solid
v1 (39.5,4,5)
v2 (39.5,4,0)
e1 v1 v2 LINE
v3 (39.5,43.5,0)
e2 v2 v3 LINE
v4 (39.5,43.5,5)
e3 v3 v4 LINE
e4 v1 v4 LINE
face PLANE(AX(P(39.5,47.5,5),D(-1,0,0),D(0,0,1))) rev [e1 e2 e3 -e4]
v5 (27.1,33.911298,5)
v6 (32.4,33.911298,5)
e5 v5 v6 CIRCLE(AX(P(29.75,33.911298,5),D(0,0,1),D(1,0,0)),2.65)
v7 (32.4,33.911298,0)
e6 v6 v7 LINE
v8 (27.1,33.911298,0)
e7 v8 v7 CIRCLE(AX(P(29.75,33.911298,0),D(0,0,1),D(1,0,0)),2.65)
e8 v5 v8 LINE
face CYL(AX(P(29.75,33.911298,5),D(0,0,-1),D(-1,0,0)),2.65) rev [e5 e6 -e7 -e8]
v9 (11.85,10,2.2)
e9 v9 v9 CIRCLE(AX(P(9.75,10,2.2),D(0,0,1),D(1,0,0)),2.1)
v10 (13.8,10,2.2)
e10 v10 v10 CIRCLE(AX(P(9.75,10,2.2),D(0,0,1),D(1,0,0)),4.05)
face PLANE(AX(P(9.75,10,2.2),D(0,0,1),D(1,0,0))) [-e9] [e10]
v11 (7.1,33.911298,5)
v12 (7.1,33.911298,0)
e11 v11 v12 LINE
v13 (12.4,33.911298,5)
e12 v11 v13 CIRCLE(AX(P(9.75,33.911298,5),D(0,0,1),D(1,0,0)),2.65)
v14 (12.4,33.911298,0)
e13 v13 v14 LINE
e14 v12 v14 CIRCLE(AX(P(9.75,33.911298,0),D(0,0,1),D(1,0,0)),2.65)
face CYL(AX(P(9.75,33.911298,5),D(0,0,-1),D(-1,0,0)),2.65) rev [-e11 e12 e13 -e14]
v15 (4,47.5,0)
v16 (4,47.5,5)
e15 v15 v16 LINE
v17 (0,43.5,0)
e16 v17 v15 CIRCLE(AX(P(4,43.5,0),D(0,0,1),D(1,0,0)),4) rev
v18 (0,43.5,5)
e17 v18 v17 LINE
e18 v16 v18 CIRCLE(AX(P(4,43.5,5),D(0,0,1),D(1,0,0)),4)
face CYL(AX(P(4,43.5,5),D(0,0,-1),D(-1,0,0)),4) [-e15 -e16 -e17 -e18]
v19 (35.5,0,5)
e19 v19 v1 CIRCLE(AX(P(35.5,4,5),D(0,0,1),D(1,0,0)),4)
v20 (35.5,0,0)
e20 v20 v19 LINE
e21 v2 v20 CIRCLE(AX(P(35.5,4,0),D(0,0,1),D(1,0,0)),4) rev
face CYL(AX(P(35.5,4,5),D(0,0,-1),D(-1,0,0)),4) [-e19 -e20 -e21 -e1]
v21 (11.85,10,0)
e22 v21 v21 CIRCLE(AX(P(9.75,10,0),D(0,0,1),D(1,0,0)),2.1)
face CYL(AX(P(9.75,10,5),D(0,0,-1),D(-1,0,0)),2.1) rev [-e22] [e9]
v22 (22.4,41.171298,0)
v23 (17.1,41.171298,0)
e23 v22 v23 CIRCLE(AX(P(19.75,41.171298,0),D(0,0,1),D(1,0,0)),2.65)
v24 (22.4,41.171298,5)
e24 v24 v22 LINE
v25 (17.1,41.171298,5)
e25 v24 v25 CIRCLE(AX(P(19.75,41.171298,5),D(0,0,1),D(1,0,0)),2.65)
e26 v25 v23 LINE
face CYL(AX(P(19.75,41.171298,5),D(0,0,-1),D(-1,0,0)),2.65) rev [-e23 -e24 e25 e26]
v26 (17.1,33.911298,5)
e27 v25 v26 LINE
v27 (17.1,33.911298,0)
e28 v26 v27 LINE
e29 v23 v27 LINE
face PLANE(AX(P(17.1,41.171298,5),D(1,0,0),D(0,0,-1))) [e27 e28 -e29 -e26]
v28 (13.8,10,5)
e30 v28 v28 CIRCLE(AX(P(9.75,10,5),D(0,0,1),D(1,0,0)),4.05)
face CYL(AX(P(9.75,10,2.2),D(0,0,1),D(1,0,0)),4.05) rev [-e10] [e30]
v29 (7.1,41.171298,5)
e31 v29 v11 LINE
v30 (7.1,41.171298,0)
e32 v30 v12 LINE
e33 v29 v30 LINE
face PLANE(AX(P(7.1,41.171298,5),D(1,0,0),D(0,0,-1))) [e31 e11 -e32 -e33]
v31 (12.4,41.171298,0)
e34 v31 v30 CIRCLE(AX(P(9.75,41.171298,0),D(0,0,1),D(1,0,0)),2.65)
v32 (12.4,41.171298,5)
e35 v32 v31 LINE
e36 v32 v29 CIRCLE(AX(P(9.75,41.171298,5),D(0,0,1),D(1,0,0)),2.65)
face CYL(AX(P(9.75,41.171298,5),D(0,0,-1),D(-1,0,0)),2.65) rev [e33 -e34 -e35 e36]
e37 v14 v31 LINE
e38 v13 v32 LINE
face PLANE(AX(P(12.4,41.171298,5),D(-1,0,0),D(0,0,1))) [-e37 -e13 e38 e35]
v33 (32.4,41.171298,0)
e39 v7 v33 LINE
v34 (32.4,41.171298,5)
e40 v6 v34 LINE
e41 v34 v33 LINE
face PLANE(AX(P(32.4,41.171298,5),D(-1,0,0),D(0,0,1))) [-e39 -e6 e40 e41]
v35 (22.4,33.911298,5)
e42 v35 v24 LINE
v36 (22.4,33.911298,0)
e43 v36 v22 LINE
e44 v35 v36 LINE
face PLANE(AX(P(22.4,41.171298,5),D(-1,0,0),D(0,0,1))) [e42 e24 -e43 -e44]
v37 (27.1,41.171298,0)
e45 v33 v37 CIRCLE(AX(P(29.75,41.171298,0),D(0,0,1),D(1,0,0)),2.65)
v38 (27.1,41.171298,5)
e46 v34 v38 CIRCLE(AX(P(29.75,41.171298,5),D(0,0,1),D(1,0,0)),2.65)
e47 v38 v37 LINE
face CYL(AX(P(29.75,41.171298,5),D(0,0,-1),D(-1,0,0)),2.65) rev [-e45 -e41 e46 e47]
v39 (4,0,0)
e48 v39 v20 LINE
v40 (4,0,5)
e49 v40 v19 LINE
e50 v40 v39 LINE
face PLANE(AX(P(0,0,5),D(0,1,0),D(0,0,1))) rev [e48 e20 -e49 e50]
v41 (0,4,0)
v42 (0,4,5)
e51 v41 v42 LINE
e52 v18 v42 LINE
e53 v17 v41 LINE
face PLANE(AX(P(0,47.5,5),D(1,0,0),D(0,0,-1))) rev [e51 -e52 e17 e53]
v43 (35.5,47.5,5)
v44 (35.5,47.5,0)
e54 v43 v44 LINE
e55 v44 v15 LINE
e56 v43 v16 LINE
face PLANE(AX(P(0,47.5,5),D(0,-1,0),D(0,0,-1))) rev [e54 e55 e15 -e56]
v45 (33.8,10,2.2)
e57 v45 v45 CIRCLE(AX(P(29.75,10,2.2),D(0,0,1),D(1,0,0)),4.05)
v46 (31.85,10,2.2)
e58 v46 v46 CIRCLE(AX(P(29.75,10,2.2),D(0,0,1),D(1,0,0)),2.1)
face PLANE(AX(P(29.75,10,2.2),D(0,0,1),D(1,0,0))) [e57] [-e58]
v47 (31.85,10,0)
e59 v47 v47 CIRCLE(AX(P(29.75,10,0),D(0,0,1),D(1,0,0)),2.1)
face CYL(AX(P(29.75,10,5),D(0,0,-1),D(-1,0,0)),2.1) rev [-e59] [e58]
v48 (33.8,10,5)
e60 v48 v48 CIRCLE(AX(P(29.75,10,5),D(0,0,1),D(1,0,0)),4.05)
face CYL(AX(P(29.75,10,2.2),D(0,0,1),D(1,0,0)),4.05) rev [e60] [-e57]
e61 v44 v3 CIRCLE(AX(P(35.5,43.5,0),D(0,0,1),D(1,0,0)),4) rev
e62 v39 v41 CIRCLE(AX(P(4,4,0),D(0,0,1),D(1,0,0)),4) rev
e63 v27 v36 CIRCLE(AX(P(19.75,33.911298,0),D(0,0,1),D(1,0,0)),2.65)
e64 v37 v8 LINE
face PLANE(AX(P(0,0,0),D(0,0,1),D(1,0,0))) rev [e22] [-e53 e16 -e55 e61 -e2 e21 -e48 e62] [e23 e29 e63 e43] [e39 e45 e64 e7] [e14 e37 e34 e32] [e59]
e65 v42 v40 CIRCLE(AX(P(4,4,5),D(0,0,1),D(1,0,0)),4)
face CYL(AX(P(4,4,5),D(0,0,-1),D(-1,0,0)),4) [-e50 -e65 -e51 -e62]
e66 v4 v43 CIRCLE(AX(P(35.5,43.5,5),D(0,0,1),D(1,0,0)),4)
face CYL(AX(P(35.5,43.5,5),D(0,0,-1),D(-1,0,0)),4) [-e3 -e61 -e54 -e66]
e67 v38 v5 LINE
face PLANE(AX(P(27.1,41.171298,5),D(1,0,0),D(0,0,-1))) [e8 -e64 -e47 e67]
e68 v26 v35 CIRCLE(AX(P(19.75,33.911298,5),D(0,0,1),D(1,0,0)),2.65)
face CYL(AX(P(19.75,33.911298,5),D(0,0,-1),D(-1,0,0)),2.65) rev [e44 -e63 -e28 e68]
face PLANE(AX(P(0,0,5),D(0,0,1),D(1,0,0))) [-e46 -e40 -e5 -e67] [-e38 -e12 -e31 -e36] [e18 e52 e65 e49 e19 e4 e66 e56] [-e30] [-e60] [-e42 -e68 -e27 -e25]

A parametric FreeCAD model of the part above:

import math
import FreeCAD as App
import Part
import Sketcher
from FreeCAD import Vector
Q = App.Units.Quantity


def edges_at(feature, points):
    """Names of the edges that pass closest to the given points."""
    edges = feature.Shape.Edges
    near = lambda p: min(range(len(edges)), key=lambda i: edges[i].distToShape(Part.Vertex(*p))[0])
    return sorted({f"Edge{near(p) + 1}" for p in points})


def add_polygon(sketch, points):
    """Adds a closed chain of lines whose ends are joined by coincident constraints."""
    first, n = sketch.GeometryCount, len(points)
    for a, b in zip(points, points[1:] + points[:1]):
        sketch.addGeometry(Part.LineSegment(App.Vector(*a, 0), App.Vector(*b, 0)), False)
    for i in range(n):
        sketch.addConstraint(Sketcher.Constraint("Coincident", first + i, 2, first + (i + 1) % n, 1))

doc = App.newDocument("Part")
body = doc.addObject("PartDesign::Body", "Body")

sketch1 = doc.addObject("Sketcher::SketchObject", "Sketch")
body.addObject(sketch1)
sketch1.AttachmentSupport = (doc.XY_Plane, [""])
sketch1.MapMode = "FlatFace"
add_polygon(sketch1, [(0, 47.5), (0, 0), (39.5, 0), (39.5, 47.5)])
sketch1.addGeometry(Part.Circle(Vector(9.8, 10, 0), Vector(0, 0, 1), 2.1), False)
sketch1.addGeometry(Part.Circle(Vector(29.8, 10, 0), Vector(0, 0, 1), 2.1), False)
sketch1.addGeometry(Part.ArcOfCircle(Part.Circle(Vector(9.8, 41.2, 0), Vector(0, 0, 1), 2.6), math.radians(0), math.radians(180)), False)
sketch1.addGeometry(Part.LineSegment(Vector(12.4, 41.2, 0), Vector(12.4, 33.9, 0)), False)
sketch1.addGeometry(Part.ArcOfCircle(Part.Circle(Vector(9.8, 33.9, 0), Vector(0, 0, 1), 2.6), math.radians(180), math.radians(360)), False)
sketch1.addGeometry(Part.LineSegment(Vector(7.1, 33.9, 0), Vector(7.1, 41.2, 0)), False)
sketch1.addGeometry(Part.ArcOfCircle(Part.Circle(Vector(19.8, 41.2, 0), Vector(0, 0, 1), 2.6), math.radians(0), math.radians(180)), False)
sketch1.addGeometry(Part.LineSegment(Vector(22.4, 41.2, 0), Vector(22.4, 33.9, 0)), False)
sketch1.addGeometry(Part.ArcOfCircle(Part.Circle(Vector(19.8, 33.9, 0), Vector(0, 0, 1), 2.6), math.radians(180), math.radians(360)), False)
sketch1.addGeometry(Part.LineSegment(Vector(17.1, 33.9, 0), Vector(17.1, 41.2, 0)), False)
sketch1.addGeometry(Part.ArcOfCircle(Part.Circle(Vector(29.8, 41.2, 0), Vector(0, 0, 1), 2.6), math.radians(0), math.radians(180)), False)
sketch1.addGeometry(Part.LineSegment(Vector(32.4, 41.2, 0), Vector(32.4, 33.9, 0)), False)
sketch1.addGeometry(Part.ArcOfCircle(Part.Circle(Vector(29.8, 33.9, 0), Vector(0, 0, 1), 2.6), math.radians(180), math.radians(360)), False)
sketch1.addGeometry(Part.LineSegment(Vector(27.1, 33.9, 0), Vector(27.1, 41.2, 0)), False)
sketch1.addConstraint([
    Sketcher.Constraint("Tangent", 6, 1, 7, 1),
    Sketcher.Constraint("Tangent", 7, 2, 8, 2),
    Sketcher.Constraint("Tangent", 8, 1, 9, 1),
    Sketcher.Constraint("Tangent", 9, 2, 6, 2),
    Sketcher.Constraint("Tangent", 10, 1, 11, 1),
    Sketcher.Constraint("Tangent", 11, 2, 12, 2),
    Sketcher.Constraint("Tangent", 12, 1, 13, 1),
    Sketcher.Constraint("Tangent", 13, 2, 10, 2),
    Sketcher.Constraint("Tangent", 14, 1, 15, 1),
    Sketcher.Constraint("Tangent", 15, 2, 16, 2),
    Sketcher.Constraint("Tangent", 16, 1, 17, 1),
    Sketcher.Constraint("Tangent", 17, 2, 14, 2),
    Sketcher.Constraint("Vertical", 0),
    Sketcher.Constraint("Horizontal", 1),
    Sketcher.Constraint("Vertical", 2),
    Sketcher.Constraint("Horizontal", 3),
    Sketcher.Constraint("Vertical", 7),
    Sketcher.Constraint("Vertical", 9),
    Sketcher.Constraint("Vertical", 11),
    Sketcher.Constraint("Vertical", 13),
    Sketcher.Constraint("Vertical", 15),
    Sketcher.Constraint("Vertical", 17),
    Sketcher.Constraint("Coincident", 0, 2, -1, 1),
    Sketcher.Constraint("Equal", 4, 5),
    Sketcher.Constraint("Equal", 8, 10),
    Sketcher.Constraint("Equal", 12, 14),
    Sketcher.Constraint("Horizontal", 4, 3, 5, 3),
    Sketcher.Constraint("Horizontal", 6, 3, 10, 3),
    Sketcher.Constraint("Horizontal", 8, 3, 12, 3),
    Sketcher.Constraint("Horizontal", 10, 3, 14, 3),
    Sketcher.Constraint("Horizontal", 12, 3, 16, 3),
    Sketcher.Constraint("Vertical", 4, 3, 6, 3),
    Sketcher.Constraint("Vertical", 5, 3, 14, 3),
    Sketcher.Constraint("Diameter", 4, Q("4.2 mm")),
    Sketcher.Constraint("Radius", 6, Q("2.65 mm")),
    Sketcher.Constraint("DistanceX", 1, 1, 1, 2, Q("39.5 mm")),
    Sketcher.Constraint("DistanceY", 0, 2, 0, 1, Q("47.5 mm")),
    Sketcher.Constraint("DistanceY", -1, 1, 4, 3, Q("10 mm")),
    Sketcher.Constraint("DistanceX", 4, 3, 5, 3, Q("20 mm")),
    Sketcher.Constraint("DistanceX", 6, 3, 10, 3, Q("10 mm")),
    Sketcher.Constraint("DistanceY", 7, 2, 7, 1, Q("7.26 mm")),
    Sketcher.Constraint("DistanceX", -1, 1, 6, 1, Q("12.4 mm")),
    Sketcher.Constraint("DistanceY", -1, 1, 6, 3, Q("41.171298 mm")),
])
pad1 = doc.addObject("PartDesign::Pad", "Pad")
body.addObject(pad1)
pad1.Profile = sketch1
pad1.Length = 5
doc.recompute()

fillet = doc.addObject("PartDesign::Fillet", "Fillet")
body.addObject(fillet)
fillet.Base = (pad1, edges_at(pad1, [
    (0, 47.5, 2.5),
    (39.5, 47.5, 2.5),
    (39.5, 0, 2.5),
    (0, 0, 2.5),
]))
fillet.Radius = 4

sketch2 = doc.addObject("Sketcher::SketchObject", "Sketch001")
body.addObject(sketch2)
sketch2.AttachmentSupport = (doc.XY_Plane, [""])
sketch2.MapMode = "FlatFace"
sketch2.AttachmentOffset = App.Placement(Vector(0, 0, 5), App.Rotation())
sketch2.addGeometry([
    Part.Circle(Vector(29.8, 10, 0), Vector(0, 0, 1), 4),
    Part.Circle(Vector(9.8, 10, 0), Vector(0, 0, 1), 4),
], False)
sketch2.addConstraint([
    Sketcher.Constraint("Equal", 0, 1),
    Sketcher.Constraint("Horizontal", 0, 3, 1, 3),
    Sketcher.Constraint("Diameter", 0, Q("8.1 mm")),
    Sketcher.Constraint("DistanceY", -1, 1, 0, 3, Q("10 mm")),
    Sketcher.Constraint("DistanceX", 1, 3, 0, 3, Q("20 mm")),
    Sketcher.Constraint("DistanceX", -1, 1, 0, 3, Q("29.75 mm")),
])
pocket1 = doc.addObject("PartDesign::Pocket", "Pocket")
body.addObject(pocket1)
pocket1.Profile = sketch2
pocket1.Length = 2.8

doc.recompute()
